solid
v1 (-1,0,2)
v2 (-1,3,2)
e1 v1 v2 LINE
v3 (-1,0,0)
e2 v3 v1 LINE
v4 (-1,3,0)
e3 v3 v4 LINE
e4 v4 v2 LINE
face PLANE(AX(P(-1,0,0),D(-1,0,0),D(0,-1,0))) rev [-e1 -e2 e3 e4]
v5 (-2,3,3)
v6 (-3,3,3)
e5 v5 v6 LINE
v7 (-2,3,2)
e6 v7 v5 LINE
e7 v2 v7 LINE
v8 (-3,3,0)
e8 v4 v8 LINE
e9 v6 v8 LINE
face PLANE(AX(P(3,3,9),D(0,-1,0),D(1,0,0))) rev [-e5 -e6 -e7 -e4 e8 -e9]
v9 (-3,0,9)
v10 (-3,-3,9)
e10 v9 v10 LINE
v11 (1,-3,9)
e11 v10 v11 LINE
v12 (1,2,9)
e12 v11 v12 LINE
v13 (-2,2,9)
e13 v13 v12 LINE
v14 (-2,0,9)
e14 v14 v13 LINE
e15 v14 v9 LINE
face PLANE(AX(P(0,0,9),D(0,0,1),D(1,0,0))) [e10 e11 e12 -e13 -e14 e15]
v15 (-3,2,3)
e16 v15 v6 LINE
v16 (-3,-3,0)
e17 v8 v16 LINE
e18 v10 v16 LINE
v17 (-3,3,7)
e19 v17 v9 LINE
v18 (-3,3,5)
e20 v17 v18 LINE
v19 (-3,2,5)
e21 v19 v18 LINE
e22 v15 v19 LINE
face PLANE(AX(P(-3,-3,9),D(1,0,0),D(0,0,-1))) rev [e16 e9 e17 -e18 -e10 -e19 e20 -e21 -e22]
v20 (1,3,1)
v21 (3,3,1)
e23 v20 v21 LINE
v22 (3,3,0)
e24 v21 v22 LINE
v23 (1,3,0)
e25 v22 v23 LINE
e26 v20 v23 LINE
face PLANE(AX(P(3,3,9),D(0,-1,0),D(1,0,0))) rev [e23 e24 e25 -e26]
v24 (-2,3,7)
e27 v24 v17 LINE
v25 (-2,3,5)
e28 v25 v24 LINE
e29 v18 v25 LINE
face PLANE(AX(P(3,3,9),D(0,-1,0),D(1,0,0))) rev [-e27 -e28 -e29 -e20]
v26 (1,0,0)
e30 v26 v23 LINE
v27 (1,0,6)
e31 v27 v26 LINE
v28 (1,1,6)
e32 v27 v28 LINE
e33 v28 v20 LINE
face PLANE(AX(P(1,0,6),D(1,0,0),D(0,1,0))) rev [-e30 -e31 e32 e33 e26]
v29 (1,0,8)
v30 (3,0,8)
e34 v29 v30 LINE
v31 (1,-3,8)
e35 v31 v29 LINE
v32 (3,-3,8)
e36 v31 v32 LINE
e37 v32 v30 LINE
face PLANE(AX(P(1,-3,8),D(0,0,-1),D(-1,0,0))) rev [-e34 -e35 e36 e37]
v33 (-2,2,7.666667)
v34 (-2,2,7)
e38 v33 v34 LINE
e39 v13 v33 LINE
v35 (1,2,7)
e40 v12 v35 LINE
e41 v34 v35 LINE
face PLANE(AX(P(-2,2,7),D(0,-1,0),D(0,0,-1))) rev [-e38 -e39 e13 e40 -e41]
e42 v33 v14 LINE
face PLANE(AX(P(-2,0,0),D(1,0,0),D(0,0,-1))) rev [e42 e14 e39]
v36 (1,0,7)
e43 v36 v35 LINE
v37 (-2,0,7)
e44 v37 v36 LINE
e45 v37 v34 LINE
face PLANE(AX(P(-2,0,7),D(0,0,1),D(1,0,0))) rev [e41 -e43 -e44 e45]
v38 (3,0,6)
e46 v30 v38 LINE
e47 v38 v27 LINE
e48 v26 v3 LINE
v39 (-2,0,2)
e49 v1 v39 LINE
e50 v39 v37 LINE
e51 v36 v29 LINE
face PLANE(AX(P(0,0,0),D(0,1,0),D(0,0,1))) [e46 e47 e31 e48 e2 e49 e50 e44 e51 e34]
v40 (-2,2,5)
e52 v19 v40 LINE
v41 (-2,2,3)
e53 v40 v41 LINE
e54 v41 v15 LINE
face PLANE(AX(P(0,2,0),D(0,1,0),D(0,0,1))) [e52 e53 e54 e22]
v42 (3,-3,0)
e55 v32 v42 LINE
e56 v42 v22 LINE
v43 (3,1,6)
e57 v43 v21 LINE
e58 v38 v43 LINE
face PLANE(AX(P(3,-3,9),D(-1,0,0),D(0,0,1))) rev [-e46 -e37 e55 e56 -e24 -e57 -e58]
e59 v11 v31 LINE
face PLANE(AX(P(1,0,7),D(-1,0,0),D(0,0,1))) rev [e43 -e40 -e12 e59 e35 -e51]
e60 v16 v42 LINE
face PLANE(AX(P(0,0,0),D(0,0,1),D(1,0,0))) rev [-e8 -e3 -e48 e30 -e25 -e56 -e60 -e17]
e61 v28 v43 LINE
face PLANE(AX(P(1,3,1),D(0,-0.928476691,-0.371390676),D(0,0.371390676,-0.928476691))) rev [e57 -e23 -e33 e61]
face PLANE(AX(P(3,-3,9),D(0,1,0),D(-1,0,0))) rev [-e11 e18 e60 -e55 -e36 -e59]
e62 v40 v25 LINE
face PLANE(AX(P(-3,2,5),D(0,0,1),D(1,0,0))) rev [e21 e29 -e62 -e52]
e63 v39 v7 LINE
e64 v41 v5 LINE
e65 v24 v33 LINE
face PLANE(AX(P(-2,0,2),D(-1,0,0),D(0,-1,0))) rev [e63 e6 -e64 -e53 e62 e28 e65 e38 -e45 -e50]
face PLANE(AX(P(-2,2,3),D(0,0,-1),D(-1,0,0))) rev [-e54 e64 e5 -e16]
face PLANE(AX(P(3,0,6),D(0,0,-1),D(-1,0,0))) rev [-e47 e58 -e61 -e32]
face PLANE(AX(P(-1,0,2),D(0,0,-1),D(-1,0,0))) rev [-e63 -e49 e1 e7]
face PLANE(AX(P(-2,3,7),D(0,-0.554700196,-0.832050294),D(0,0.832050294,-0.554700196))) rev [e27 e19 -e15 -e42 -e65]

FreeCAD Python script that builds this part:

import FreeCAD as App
import Part
import Sketcher

V = App.Vector
Q = App.Units.Quantity


def add_polygon(sketch, points):
    """Adds a closed chain of lines whose ends are joined by coincident constraints."""
    first, n = sketch.GeometryCount, len(points)
    for a, b in zip(points, points[1:] + points[:1]):
        sketch.addGeometry(Part.LineSegment(App.Vector(*a, 0), App.Vector(*b, 0)), False)
    for i in range(n):
        sketch.addConstraint(Sketcher.Constraint("Coincident", first + i, 2, first + (i + 1) % n, 1))

doc = App.newDocument("Part")
body = doc.addObject("PartDesign::Body", "Body")

sketch1 = doc.addObject("Sketcher::SketchObject", "Sketch")
body.addObject(sketch1)
sketch1.AttachmentSupport = (doc.XY_Plane, [""])
sketch1.MapMode = "FlatFace"
add_polygon(sketch1, [(-3, 3), (-3, -3), (3, -3), (3, 3)])
sketch1.addConstraint([
    Sketcher.Constraint("Vertical", 0),
    Sketcher.Constraint("Horizontal", 1),
    Sketcher.Constraint("Vertical", 2),
    Sketcher.Constraint("Horizontal", 3),
    Sketcher.Constraint("Symmetric", 0, 2, 2, 2, -1, 1),
    Sketcher.Constraint("Equal", 3, 0),
    Sketcher.Constraint("DistanceX", 1, 1, 1, 2, Q("6 mm")),
])
pad1 = doc.addObject("PartDesign::Pad", "Pad")
body.addObject(pad1)
pad1.Profile = sketch1
pad1.Length = 9

sketch2 = doc.addObject("Sketcher::SketchObject", "Sketch001")
body.addObject(sketch2)
sketch2.AttachmentSupport = (doc.XZ_Plane, [""])
sketch2.MapMode = "FlatFace"
sketch2.AttachmentOffset = App.Placement(V(0, 0, -3), App.Rotation())
add_polygon(sketch2, [(1, 0), (-1, 0), (-1, 2), (-2, 2), (-2, 7), (1, 7), (1, 9), (3, 9), (3, 6), (1, 6)])
sketch2.addConstraint([
    Sketcher.Constraint("Horizontal", 0),
    Sketcher.Constraint("Vertical", 1),
    Sketcher.Constraint("Horizontal", 2),
    Sketcher.Constraint("Vertical", 3),
    Sketcher.Constraint("Horizontal", 4),
    Sketcher.Constraint("Vertical", 5),
    Sketcher.Constraint("Horizontal", 6),
    Sketcher.Constraint("Vertical", 7),
    Sketcher.Constraint("Horizontal", 8),
    Sketcher.Constraint("Vertical", 9),
    Sketcher.Constraint("Symmetric", 0, 2, 9, 2, -1, 1),
    Sketcher.Constraint("Vertical", 5, 2, 8, 2),
    Sketcher.Constraint("Equal", 0, 6),
    Sketcher.Constraint("Equal", 8, 1),
    Sketcher.Constraint("Equal", 1, 5),
    Sketcher.Constraint("Equal", 4, 7),
    Sketcher.Constraint("DistanceX", 0, 2, 0, 1, Q("2 mm")),
    Sketcher.Constraint("DistanceX", 2, 2, 2, 1, Q("1 mm")),
    Sketcher.Constraint("DistanceY", 3, 1, 3, 2, Q("5 mm")),
])
pocket1 = doc.addObject("PartDesign::Pocket", "Pocket")
body.addObject(pocket1)
pocket1.Profile = sketch2
pocket1.Length = 3
pocket1.Reversed = True

sketch3 = doc.addObject("Sketcher::SketchObject", "Sketch002")
body.addObject(sketch3)
sketch3.AttachmentSupport = (doc.XZ_Plane, [""])
sketch3.MapMode = "FlatFace"
sketch3.AttachmentOffset = App.Placement(V(0, 0, -3), App.Rotation())
add_polygon(sketch3, [(-3, 3), (-3, 5), (-2, 5), (-2, 3)])
sketch3.addConstraint([
    Sketcher.Constraint("Vertical", 0),
    Sketcher.Constraint("Horizontal", 1),
    Sketcher.Constraint("Vertical", 2),
    Sketcher.Constraint("Horizontal", 3),
    Sketcher.Constraint("DistanceX", 1, 1, 1, 2, Q("1 mm")),
    Sketcher.Constraint("DistanceY", 0, 1, 0, 2, Q("2 mm")),
    Sketcher.Constraint("DistanceX", 0, 2, -1, 1, Q("3 mm")),
    Sketcher.Constraint("DistanceY", -1, 1, 0, 2, Q("5 mm")),
])
pocket2 = doc.addObject("PartDesign::Pocket", "Pocket001")
body.addObject(pocket2)
pocket2.Profile = sketch3
pocket2.Length = 1
pocket2.Reversed = True

sketch4 = doc.addObject("Sketcher::SketchObject", "Sketch003")
body.addObject(sketch4)
sketch4.AttachmentSupport = (doc.YZ_Plane, [""])
sketch4.MapMode = "FlatFace"
sketch4.AttachmentOffset = App.Placement(V(0, 0, -3), App.Rotation())
add_polygon(sketch4, [(3, 7), (0, 9), (3, 9)])
sketch4.addConstraint([
    Sketcher.Constraint("Horizontal", 1),
    Sketcher.Constraint("Vertical", 2),
    Sketcher.Constraint("PointOnObject", 0, 2, -2),
    Sketcher.Constraint("DistanceX", 1, 1, 1, 2, Q("3 mm")),
    Sketcher.Constraint("DistanceY", 2, 2, 2, 1, Q("2 mm")),
    Sketcher.Constraint("DistanceY", -1, 1, 0, 2, Q("9 mm")),
])
pocket3 = doc.addObject("PartDesign::Pocket", "Pocket002")
body.addObject(pocket3)
pocket3.Profile = sketch4
pocket3.Length = 1
pocket3.Reversed = True

sketch5 = doc.addObject("Sketcher::SketchObject", "Sketch004")
body.addObject(sketch5)
sketch5.AttachmentSupport = (doc.YZ_Plane, [""])
sketch5.MapMode = "FlatFace"
sketch5.AttachmentOffset = App.Placement(V(0, 0, 1), App.Rotation())
add_polygon(sketch5, [(3, 9), (2, 9), (2, 7), (3, 7)])
sketch5.addConstraint([
    Sketcher.Constraint("Horizontal", 0),
    Sketcher.Constraint("Vertical", 1),
    Sketcher.Constraint("Horizontal", 2),
    Sketcher.Constraint("Vertical", 3),
    Sketcher.Constraint("DistanceX", 0, 2, 0, 1, Q("1 mm")),
    Sketcher.Constraint("DistanceY", 1, 2, 1, 1, Q("2 mm")),
    Sketcher.Constraint("DistanceX", -1, 1, 0, 2, Q("2 mm")),
    Sketcher.Constraint("DistanceY", -1, 1, 0, 2, Q("9 mm")),
])
pocket4 = doc.addObject("PartDesign::Pocket", "Pocket003")
body.addObject(pocket4)
pocket4.Profile = sketch5
pocket4.Length = 3

sketch6 = doc.addObject("Sketcher::SketchObject", "Sketch005")
body.addObject(sketch6)
sketch6.AttachmentSupport = (doc.YZ_Plane, [""])
sketch6.MapMode = "FlatFace"
sketch6.AttachmentOffset = App.Placement(V(0, 0, 3), App.Rotation())
add_polygon(sketch6, [(0, 9), (-3, 9), (-3, 8), (0, 8)])
sketch6.addConstraint([
    Sketcher.Constraint("Horizontal", 0),
    Sketcher.Constraint("Vertical", 1),
    Sketcher.Constraint("Horizontal", 2),
    Sketcher.Constraint("Vertical", 3),
    Sketcher.Constraint("PointOnObject", 2, 2, -2),
    Sketcher.Constraint("DistanceX", 0, 2, 0, 1, Q("3 mm")),
    Sketcher.Constraint("DistanceY", 1, 2, 1, 1, Q("1 mm")),
    Sketcher.Constraint("DistanceY", -1, 1, 0, 2, Q("9 mm")),
])
pocket5 = doc.addObject("PartDesign::Pocket", "Pocket004")
body.addObject(pocket5)
pocket5.Profile = sketch6
pocket5.Length = 2

sketch7 = doc.addObject("Sketcher::SketchObject", "Sketch006")
body.addObject(sketch7)
sketch7.AttachmentSupport = (doc.YZ_Plane, [""])
sketch7.MapMode = "FlatFace"
sketch7.AttachmentOffset = App.Placement(V(0, 0, 3), App.Rotation())
add_polygon(sketch7, [(1, 6), (3, 1), (3, 6)])
sketch7.addConstraint([
    Sketcher.Constraint("Vertical", 1),
    Sketcher.Constraint("Horizontal", 2),
    Sketcher.Constraint("DistanceX", 2, 2, 2, 1, Q("2 mm")),
    Sketcher.Constraint("DistanceY", 1, 1, 1, 2, Q("5 mm")),
    Sketcher.Constraint("DistanceX", -1, 1, 0, 2, Q("3 mm")),
    Sketcher.Constraint("DistanceY", -1, 1, 0, 2, Q("1 mm")),
])
pocket6 = doc.addObject("PartDesign::Pocket", "Pocket005")
body.addObject(pocket6)
pocket6.Profile = sketch7
pocket6.Length = 2

doc.recompute()
